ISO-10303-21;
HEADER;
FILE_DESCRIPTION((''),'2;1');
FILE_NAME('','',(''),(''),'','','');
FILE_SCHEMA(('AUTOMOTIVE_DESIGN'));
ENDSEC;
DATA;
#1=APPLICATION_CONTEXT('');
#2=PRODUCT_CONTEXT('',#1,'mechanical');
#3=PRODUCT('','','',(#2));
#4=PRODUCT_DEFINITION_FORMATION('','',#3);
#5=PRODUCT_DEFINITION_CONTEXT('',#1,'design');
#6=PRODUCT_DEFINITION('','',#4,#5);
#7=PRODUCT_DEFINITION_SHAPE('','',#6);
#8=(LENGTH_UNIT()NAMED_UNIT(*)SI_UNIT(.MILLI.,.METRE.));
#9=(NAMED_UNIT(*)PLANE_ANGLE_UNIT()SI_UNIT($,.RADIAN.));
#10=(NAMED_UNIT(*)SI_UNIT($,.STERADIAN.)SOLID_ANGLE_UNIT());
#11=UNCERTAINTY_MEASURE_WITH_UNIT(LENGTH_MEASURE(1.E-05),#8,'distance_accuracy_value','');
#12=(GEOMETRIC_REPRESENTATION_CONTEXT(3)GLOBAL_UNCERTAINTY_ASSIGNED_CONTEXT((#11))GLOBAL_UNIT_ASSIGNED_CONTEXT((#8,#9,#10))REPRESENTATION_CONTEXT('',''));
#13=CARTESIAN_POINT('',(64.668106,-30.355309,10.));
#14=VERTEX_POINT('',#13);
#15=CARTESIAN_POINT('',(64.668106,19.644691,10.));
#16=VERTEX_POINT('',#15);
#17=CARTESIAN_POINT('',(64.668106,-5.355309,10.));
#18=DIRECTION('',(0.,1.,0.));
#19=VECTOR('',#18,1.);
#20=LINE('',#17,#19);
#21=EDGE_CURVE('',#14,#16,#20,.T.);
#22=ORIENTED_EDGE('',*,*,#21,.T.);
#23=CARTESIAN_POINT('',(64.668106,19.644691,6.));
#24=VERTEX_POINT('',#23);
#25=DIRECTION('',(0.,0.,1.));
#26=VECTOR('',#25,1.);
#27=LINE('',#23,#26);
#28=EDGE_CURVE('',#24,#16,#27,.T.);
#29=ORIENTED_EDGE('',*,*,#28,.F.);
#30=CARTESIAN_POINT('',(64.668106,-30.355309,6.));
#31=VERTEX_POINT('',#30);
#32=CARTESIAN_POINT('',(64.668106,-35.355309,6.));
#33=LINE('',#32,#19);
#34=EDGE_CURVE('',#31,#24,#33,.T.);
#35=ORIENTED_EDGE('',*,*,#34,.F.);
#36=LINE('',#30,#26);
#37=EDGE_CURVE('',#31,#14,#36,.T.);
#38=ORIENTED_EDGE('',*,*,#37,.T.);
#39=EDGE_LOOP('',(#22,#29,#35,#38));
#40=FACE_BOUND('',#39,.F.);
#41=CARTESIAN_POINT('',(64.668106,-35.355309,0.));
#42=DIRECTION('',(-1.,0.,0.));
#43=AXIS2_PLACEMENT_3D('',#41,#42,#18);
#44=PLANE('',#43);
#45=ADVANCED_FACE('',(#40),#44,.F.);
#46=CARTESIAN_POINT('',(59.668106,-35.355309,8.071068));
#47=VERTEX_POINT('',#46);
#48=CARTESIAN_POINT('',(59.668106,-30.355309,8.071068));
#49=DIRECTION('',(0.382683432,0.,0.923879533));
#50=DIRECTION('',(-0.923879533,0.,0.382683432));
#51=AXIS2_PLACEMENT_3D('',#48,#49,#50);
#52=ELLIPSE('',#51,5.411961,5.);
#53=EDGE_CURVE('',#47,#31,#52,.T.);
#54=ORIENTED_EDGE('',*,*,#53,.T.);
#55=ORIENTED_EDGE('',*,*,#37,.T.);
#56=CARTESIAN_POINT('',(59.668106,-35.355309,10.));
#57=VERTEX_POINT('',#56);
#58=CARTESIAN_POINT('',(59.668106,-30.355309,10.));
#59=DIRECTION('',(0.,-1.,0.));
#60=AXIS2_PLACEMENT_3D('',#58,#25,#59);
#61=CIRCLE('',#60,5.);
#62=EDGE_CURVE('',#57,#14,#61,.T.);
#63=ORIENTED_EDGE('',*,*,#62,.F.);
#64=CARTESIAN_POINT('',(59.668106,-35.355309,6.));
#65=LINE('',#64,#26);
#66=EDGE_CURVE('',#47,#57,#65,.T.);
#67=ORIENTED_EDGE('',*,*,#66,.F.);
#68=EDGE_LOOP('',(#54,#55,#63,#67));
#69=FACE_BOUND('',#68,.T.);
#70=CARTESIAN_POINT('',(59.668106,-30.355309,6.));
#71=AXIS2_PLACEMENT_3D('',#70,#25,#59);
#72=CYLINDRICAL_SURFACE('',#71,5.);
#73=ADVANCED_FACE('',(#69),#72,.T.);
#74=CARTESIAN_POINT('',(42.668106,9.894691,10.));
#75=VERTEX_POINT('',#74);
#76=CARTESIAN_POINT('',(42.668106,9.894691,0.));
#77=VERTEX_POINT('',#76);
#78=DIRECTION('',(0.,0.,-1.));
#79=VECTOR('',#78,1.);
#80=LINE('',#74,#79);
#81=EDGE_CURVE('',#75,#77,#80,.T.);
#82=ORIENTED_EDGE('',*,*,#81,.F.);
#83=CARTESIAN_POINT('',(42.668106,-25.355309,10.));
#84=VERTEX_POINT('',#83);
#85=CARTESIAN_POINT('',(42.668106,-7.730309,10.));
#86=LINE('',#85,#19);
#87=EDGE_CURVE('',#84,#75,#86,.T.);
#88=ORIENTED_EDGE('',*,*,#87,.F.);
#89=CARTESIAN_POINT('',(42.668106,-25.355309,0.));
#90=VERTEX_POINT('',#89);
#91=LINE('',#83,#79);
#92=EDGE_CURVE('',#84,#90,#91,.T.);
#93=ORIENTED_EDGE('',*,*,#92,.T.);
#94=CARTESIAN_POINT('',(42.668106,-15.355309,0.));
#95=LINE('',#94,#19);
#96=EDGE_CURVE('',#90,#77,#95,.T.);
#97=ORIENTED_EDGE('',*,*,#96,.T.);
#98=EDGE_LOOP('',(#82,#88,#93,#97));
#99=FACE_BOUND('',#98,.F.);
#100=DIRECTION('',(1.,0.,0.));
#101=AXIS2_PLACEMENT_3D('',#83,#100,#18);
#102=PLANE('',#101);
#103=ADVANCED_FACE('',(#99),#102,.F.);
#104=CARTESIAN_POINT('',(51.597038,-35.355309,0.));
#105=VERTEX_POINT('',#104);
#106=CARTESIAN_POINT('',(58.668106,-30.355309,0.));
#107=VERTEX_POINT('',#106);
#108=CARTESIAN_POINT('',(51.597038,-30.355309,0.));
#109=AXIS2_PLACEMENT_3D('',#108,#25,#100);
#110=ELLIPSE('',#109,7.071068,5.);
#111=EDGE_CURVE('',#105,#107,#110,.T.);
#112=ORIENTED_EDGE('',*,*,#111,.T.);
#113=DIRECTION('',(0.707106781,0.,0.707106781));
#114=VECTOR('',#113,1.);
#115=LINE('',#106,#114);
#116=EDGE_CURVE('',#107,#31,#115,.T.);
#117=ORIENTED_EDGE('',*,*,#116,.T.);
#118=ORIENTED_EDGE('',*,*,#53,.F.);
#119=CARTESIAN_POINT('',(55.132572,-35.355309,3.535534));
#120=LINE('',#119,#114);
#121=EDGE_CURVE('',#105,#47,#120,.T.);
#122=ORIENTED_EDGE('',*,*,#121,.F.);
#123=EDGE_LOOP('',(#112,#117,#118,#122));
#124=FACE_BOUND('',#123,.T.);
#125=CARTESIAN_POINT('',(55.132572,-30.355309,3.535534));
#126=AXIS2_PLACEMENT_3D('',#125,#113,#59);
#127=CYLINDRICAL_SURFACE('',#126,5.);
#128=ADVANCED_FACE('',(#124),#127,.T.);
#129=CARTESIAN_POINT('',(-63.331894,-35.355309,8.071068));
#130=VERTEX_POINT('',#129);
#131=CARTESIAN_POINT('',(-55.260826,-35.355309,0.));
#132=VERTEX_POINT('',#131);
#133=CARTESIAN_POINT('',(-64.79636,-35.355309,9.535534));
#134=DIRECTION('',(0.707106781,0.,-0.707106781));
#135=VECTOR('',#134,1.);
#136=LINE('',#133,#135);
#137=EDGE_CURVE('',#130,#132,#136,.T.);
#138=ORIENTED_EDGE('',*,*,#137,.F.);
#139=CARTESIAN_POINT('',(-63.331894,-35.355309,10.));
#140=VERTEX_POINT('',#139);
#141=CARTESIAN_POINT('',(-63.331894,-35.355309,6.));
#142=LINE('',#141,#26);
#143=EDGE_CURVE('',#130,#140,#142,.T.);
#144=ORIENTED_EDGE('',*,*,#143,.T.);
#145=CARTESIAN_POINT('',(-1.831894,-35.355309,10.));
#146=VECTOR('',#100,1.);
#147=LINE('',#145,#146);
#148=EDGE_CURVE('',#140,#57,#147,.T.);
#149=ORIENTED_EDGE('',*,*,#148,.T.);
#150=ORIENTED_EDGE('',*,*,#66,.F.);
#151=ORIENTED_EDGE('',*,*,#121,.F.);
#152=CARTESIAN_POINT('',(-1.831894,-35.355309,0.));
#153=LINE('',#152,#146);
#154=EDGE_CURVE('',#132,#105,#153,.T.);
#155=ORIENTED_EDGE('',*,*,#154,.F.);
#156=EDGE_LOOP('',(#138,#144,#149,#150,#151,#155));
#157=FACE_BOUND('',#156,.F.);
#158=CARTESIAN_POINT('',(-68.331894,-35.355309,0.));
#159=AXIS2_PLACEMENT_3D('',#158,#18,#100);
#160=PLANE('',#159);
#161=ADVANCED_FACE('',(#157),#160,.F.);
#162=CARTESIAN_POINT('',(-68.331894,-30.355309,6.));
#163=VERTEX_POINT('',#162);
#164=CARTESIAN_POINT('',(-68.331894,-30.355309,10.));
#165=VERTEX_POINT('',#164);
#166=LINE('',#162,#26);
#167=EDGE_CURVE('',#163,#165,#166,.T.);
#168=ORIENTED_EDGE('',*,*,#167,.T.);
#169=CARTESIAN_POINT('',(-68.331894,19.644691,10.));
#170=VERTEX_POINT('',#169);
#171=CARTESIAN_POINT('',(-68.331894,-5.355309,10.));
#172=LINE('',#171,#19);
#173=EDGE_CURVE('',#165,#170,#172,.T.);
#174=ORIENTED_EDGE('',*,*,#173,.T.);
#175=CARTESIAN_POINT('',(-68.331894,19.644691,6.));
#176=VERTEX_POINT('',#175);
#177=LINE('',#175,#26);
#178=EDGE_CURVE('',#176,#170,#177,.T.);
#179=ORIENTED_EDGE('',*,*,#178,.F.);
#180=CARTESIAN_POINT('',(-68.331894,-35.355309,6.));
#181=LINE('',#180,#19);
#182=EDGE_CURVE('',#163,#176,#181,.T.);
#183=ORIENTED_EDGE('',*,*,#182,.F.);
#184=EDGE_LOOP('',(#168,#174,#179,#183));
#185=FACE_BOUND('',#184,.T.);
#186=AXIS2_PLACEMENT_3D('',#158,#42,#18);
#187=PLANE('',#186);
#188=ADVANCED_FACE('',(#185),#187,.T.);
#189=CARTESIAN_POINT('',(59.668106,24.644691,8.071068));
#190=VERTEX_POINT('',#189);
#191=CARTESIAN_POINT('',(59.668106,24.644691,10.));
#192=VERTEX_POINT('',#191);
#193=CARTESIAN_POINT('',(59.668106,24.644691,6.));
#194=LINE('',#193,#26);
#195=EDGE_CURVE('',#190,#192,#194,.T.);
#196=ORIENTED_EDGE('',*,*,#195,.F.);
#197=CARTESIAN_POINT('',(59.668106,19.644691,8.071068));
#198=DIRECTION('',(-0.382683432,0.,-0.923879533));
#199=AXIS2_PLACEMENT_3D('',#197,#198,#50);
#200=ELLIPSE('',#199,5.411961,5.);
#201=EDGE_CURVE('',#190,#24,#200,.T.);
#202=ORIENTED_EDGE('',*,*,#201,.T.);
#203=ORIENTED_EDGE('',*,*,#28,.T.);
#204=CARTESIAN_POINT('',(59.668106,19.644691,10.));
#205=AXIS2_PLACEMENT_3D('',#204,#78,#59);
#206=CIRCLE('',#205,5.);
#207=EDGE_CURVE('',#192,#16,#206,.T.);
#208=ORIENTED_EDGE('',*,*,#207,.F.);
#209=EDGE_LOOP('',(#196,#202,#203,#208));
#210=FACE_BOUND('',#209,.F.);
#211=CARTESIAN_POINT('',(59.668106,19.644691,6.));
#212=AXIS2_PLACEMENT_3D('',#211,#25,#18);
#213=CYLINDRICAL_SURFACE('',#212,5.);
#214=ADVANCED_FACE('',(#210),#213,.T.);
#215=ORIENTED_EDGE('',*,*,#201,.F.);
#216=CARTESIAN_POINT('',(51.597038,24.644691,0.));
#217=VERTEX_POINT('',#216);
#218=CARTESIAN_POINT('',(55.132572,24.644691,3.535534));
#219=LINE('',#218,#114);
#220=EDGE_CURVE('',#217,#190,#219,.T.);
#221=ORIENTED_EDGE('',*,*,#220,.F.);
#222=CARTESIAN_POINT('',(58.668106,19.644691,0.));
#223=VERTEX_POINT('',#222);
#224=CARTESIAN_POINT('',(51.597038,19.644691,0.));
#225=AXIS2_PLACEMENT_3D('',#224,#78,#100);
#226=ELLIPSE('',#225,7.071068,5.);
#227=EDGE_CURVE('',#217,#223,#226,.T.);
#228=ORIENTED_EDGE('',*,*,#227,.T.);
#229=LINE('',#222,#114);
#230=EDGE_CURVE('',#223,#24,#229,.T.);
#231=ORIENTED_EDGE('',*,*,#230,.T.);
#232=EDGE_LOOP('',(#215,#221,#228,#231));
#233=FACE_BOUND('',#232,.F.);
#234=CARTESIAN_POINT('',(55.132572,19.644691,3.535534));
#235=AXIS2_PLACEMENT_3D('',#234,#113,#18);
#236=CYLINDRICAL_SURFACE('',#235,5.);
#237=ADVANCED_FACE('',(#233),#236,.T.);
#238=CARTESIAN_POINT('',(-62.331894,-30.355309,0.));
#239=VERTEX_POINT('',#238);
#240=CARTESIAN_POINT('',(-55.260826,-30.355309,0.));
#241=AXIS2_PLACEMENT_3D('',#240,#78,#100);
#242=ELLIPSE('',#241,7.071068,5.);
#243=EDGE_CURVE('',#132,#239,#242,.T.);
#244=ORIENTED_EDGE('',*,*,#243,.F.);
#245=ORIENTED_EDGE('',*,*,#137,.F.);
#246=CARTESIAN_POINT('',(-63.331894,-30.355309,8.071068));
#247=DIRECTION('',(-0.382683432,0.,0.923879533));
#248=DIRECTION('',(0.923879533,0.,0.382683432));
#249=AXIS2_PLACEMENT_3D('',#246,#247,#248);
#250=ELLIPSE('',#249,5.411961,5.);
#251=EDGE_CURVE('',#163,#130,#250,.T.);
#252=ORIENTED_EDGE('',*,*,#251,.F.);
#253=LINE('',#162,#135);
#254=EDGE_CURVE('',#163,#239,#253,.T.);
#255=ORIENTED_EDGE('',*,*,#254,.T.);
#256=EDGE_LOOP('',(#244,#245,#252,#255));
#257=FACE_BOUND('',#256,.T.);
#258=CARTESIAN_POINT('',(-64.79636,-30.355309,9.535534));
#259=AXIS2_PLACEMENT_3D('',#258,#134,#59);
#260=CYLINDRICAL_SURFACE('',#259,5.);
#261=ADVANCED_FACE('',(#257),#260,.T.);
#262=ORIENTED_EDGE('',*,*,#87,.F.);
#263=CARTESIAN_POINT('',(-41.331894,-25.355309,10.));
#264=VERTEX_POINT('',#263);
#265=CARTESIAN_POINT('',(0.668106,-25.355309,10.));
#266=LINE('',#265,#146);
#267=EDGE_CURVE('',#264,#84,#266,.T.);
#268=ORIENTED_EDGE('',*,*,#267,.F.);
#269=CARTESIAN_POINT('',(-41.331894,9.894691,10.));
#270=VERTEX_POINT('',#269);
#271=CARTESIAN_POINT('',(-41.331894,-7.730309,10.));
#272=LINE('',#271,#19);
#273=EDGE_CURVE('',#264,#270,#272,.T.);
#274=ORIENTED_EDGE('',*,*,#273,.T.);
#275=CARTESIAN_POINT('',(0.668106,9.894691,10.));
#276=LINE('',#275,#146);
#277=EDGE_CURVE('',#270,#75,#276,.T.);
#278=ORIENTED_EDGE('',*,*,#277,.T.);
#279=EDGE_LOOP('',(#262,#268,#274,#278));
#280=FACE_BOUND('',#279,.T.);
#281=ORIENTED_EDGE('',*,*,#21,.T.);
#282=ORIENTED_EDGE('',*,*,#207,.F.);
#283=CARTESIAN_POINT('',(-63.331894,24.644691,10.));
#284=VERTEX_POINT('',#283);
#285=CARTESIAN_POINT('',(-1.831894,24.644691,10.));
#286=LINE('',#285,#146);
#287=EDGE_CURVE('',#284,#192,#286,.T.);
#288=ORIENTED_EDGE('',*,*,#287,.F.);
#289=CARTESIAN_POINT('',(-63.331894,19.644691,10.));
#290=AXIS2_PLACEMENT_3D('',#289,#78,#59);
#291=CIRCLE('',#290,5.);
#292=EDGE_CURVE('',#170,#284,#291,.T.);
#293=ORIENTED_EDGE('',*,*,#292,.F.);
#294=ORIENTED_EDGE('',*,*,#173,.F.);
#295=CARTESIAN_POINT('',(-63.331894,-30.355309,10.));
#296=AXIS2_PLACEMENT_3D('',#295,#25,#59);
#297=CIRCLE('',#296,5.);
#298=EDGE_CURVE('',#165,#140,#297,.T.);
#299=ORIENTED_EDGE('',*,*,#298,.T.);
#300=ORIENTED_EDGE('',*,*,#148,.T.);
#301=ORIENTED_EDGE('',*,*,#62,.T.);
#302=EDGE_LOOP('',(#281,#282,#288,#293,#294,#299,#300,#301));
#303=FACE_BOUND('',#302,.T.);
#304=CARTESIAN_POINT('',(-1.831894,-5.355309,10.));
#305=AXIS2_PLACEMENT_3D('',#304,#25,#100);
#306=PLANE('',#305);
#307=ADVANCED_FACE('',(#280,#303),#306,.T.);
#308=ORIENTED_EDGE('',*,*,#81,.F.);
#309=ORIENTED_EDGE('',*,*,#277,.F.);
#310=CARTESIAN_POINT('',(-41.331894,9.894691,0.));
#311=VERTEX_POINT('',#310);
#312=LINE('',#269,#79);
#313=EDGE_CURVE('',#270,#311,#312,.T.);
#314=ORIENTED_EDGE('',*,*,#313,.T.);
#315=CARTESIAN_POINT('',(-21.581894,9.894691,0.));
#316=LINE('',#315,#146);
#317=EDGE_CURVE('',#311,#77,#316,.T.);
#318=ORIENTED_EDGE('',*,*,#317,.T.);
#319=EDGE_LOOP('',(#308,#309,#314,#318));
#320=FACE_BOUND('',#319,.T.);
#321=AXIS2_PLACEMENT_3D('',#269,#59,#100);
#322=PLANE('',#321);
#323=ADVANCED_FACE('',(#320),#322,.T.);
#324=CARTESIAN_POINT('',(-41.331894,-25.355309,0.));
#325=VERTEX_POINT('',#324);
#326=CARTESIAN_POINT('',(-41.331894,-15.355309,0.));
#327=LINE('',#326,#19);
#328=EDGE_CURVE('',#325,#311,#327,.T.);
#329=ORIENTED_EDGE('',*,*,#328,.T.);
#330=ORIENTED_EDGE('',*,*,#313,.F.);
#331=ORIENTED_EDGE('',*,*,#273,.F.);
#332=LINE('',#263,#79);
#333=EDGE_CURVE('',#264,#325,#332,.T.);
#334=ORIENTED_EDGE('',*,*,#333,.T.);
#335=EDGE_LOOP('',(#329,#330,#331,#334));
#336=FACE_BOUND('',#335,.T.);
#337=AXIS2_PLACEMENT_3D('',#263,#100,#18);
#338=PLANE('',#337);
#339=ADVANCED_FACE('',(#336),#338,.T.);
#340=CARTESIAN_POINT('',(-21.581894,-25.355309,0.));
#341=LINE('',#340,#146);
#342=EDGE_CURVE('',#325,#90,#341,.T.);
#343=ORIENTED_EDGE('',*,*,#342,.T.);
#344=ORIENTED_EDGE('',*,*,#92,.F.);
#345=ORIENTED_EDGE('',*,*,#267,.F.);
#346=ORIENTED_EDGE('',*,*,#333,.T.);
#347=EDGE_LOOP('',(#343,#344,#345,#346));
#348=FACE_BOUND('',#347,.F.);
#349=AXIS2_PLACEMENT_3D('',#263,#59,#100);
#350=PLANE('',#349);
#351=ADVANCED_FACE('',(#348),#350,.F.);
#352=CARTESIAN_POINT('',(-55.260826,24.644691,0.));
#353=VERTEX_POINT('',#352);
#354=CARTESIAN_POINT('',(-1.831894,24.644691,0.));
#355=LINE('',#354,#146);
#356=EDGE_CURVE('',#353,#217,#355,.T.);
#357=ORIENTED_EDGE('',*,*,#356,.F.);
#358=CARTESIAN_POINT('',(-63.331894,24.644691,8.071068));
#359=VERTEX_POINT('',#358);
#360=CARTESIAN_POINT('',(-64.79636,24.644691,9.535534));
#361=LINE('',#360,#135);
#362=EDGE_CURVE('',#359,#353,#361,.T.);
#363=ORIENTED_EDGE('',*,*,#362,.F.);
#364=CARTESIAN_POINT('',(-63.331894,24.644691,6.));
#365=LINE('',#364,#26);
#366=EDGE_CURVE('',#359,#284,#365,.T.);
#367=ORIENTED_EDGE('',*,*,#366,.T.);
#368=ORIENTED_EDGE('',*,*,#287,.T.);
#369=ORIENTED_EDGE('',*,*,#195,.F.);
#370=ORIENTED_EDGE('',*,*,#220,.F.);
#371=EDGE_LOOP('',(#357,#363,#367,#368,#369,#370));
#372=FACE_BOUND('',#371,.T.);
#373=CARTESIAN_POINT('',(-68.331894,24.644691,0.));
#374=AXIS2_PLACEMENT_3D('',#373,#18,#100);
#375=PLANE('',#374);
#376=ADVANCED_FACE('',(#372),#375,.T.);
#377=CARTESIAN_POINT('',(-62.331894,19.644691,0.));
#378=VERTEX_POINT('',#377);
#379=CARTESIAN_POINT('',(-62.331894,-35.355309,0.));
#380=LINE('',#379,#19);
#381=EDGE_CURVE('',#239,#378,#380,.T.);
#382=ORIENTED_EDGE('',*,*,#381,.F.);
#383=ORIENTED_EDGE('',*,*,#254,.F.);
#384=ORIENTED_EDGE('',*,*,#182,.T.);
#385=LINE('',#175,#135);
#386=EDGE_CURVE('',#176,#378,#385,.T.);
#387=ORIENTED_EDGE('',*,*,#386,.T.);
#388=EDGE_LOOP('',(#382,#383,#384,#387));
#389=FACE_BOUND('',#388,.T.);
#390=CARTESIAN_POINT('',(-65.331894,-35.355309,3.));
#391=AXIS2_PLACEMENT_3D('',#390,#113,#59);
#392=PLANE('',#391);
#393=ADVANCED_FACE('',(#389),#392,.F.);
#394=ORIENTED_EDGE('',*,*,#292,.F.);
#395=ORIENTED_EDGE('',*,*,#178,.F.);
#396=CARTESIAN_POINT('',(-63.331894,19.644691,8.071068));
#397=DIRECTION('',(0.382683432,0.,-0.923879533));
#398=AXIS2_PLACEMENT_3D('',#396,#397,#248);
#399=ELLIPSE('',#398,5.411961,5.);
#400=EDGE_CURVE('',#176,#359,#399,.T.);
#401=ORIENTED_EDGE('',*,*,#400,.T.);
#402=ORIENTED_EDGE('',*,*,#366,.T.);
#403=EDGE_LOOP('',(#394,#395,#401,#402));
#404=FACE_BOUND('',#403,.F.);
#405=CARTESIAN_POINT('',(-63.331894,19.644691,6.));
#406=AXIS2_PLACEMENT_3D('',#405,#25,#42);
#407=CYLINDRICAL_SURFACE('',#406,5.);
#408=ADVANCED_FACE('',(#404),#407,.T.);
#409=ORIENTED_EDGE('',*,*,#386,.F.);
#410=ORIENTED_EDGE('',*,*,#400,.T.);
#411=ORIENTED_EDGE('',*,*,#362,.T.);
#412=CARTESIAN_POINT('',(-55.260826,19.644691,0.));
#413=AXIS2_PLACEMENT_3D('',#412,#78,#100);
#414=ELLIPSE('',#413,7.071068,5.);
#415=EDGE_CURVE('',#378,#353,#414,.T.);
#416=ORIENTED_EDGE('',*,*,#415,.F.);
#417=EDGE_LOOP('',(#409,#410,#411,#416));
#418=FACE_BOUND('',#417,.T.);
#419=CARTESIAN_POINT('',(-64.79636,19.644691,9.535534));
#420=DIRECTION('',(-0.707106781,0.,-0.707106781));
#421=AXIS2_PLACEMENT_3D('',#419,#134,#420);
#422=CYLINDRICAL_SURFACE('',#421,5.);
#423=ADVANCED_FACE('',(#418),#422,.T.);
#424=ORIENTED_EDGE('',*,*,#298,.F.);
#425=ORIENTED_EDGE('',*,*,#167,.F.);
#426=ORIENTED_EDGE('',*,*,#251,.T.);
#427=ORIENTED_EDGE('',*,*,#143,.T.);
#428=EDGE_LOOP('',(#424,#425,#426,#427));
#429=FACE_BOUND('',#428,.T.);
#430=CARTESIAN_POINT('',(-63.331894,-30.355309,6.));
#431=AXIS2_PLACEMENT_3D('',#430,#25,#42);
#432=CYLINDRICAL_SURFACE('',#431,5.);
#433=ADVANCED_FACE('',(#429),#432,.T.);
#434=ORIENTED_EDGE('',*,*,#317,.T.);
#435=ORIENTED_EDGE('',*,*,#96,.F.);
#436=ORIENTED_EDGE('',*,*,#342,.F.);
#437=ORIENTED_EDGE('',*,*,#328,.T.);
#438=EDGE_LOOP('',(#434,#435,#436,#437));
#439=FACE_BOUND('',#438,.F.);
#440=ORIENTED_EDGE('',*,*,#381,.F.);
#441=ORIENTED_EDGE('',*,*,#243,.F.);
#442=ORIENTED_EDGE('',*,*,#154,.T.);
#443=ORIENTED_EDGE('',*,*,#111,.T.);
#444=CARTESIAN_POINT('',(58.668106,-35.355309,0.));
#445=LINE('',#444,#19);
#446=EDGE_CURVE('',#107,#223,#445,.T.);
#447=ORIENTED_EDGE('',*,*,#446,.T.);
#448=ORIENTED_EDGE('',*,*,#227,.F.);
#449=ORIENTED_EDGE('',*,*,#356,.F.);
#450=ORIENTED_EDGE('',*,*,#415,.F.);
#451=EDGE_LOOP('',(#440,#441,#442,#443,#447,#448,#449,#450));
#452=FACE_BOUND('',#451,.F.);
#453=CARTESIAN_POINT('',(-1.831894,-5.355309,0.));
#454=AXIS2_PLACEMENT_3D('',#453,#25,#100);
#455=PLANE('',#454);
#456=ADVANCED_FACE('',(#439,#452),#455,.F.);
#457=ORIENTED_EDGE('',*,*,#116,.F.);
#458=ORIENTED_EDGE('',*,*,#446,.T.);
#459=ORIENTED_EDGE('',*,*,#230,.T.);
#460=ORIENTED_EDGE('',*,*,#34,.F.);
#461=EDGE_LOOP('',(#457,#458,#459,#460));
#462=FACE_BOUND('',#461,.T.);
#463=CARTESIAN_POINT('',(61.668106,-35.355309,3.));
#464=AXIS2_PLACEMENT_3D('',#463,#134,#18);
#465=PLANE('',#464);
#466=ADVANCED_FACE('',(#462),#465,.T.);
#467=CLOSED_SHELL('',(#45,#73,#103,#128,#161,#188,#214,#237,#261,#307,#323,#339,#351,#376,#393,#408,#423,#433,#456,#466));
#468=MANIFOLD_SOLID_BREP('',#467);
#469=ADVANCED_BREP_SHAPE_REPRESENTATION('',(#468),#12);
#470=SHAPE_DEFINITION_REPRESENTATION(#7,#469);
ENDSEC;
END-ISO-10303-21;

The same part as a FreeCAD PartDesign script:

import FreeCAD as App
import Part
import Sketcher
Q = App.Units.Quantity


def edges_at(feature, points):
    """Names of the edges that pass closest to the given points."""
    edges = feature.Shape.Edges
    near = lambda p: min(range(len(edges)), key=lambda i: edges[i].distToShape(Part.Vertex(*p))[0])
    return sorted({f"Edge{near(p) + 1}" for p in points})

doc = App.newDocument("Part")
body = doc.addObject("PartDesign::Body", "Body")

# Sketch on XY plane
sketch1 = doc.addObject("Sketcher::SketchObject", "Sketch")
body.addObject(sketch1)
sketch1.AttachmentSupport = (doc.XY_Plane, [""])
sketch1.MapMode = "FlatFace"
sketch1.addGeometry([
    Part.LineSegment(App.Vector(-68, 25, 0), App.Vector(-68, -35, 0)),
    Part.LineSegment(App.Vector(-68, -35, 0), App.Vector(65, -35, 0)),
    Part.LineSegment(App.Vector(65, -35, 0), App.Vector(65, 25, 0)),
    Part.LineSegment(App.Vector(65, 25, 0), App.Vector(-68, 25, 0)),
], False)
sketch1.addConstraint([
    Sketcher.Constraint("Coincident", 0, 2, 1, 1),
    Sketcher.Constraint("Coincident", 1, 2, 2, 1),
    Sketcher.Constraint("Coincident", 2, 2, 3, 1),
    Sketcher.Constraint("Coincident", 3, 2, 0, 1),
    Sketcher.Constraint("Vertical", 0),
    Sketcher.Constraint("Horizontal", 1),
    Sketcher.Constraint("Vertical", 2),
    Sketcher.Constraint("Horizontal", 3),
    Sketcher.Constraint("DistanceX", 1, 1, 1, 2, Q("133 mm")),
    Sketcher.Constraint("DistanceY", 0, 2, 0, 1, Q("60 mm")),
    Sketcher.Constraint("DistanceY", 0, 2, -1, 1, Q("35.355309 mm")),
    Sketcher.Constraint("DistanceX", 0, 2, -1, 1, Q("68.331894 mm")),
])
pad1 = doc.addObject("PartDesign::Pad", "Pad")
body.addObject(pad1)
pad1.Profile = sketch1
pad1.Length = 10

# Sketch on XY plane
sketch2 = doc.addObject("Sketcher::SketchObject", "Sketch001")
body.addObject(sketch2)
sketch2.AttachmentSupport = (doc.XY_Plane, [""])
sketch2.MapMode = "FlatFace"
sketch2.AttachmentOffset = App.Placement(App.Vector(0, 0, 10), App.Rotation())
sketch2.addGeometry([
    Part.LineSegment(App.Vector(-41, 10, 0), App.Vector(-41, -25, 0)),
    Part.LineSegment(App.Vector(-41, -25, 0), App.Vector(43, -25, 0)),
    Part.LineSegment(App.Vector(43, -25, 0), App.Vector(43, 10, 0)),
    Part.LineSegment(App.Vector(43, 10, 0), App.Vector(-41, 10, 0)),
], False)
sketch2.addConstraint([
    Sketcher.Constraint("Coincident", 0, 2, 1, 1),
    Sketcher.Constraint("Coincident", 1, 2, 2, 1),
    Sketcher.Constraint("Coincident", 2, 2, 3, 1),
    Sketcher.Constraint("Coincident", 3, 2, 0, 1),
    Sketcher.Constraint("Vertical", 0),
    Sketcher.Constraint("Horizontal", 1),
    Sketcher.Constraint("Vertical", 2),
    Sketcher.Constraint("Horizontal", 3),
    Sketcher.Constraint("DistanceX", 1, 1, 1, 2, Q("84 mm")),
    Sketcher.Constraint("DistanceY", 0, 2, 0, 1, Q("35.25 mm")),
    Sketcher.Constraint("DistanceY", 0, 2, -1, 1, Q("25.355309 mm")),
    Sketcher.Constraint("DistanceX", 0, 2, -1, 1, Q("41.331894 mm")),
])
pocket1 = doc.addObject("PartDesign::Pocket", "Pocket")
body.addObject(pocket1)
pocket1.Profile = sketch2
pocket1.Type = "ThroughAll"
doc.recompute()

chamfer = doc.addObject("PartDesign::Chamfer", "Chamfer")
body.addObject(chamfer)
chamfer.Base = (pocket1, edges_at(pocket1, [(64.668, -5.355, 0), (-68.332, -5.355, 0)]))
chamfer.Size = 6
doc.recompute()

fillet = doc.addObject("PartDesign::Fillet", "Fillet")
body.addObject(fillet)
fillet.Base = (chamfer, edges_at(chamfer, [
    (-68.332, -35.355, 8),
    (-65.332, -35.355, 3),
    (-68.332, 24.645, 8),
    (-65.332, 24.645, 3),
    (64.668, 24.645, 8),
    (61.668, 24.645, 3),
    (64.668, -35.355, 8),
    (61.668, -35.355, 3),
]))
fillet.Radius = 5

doc.recompute()
